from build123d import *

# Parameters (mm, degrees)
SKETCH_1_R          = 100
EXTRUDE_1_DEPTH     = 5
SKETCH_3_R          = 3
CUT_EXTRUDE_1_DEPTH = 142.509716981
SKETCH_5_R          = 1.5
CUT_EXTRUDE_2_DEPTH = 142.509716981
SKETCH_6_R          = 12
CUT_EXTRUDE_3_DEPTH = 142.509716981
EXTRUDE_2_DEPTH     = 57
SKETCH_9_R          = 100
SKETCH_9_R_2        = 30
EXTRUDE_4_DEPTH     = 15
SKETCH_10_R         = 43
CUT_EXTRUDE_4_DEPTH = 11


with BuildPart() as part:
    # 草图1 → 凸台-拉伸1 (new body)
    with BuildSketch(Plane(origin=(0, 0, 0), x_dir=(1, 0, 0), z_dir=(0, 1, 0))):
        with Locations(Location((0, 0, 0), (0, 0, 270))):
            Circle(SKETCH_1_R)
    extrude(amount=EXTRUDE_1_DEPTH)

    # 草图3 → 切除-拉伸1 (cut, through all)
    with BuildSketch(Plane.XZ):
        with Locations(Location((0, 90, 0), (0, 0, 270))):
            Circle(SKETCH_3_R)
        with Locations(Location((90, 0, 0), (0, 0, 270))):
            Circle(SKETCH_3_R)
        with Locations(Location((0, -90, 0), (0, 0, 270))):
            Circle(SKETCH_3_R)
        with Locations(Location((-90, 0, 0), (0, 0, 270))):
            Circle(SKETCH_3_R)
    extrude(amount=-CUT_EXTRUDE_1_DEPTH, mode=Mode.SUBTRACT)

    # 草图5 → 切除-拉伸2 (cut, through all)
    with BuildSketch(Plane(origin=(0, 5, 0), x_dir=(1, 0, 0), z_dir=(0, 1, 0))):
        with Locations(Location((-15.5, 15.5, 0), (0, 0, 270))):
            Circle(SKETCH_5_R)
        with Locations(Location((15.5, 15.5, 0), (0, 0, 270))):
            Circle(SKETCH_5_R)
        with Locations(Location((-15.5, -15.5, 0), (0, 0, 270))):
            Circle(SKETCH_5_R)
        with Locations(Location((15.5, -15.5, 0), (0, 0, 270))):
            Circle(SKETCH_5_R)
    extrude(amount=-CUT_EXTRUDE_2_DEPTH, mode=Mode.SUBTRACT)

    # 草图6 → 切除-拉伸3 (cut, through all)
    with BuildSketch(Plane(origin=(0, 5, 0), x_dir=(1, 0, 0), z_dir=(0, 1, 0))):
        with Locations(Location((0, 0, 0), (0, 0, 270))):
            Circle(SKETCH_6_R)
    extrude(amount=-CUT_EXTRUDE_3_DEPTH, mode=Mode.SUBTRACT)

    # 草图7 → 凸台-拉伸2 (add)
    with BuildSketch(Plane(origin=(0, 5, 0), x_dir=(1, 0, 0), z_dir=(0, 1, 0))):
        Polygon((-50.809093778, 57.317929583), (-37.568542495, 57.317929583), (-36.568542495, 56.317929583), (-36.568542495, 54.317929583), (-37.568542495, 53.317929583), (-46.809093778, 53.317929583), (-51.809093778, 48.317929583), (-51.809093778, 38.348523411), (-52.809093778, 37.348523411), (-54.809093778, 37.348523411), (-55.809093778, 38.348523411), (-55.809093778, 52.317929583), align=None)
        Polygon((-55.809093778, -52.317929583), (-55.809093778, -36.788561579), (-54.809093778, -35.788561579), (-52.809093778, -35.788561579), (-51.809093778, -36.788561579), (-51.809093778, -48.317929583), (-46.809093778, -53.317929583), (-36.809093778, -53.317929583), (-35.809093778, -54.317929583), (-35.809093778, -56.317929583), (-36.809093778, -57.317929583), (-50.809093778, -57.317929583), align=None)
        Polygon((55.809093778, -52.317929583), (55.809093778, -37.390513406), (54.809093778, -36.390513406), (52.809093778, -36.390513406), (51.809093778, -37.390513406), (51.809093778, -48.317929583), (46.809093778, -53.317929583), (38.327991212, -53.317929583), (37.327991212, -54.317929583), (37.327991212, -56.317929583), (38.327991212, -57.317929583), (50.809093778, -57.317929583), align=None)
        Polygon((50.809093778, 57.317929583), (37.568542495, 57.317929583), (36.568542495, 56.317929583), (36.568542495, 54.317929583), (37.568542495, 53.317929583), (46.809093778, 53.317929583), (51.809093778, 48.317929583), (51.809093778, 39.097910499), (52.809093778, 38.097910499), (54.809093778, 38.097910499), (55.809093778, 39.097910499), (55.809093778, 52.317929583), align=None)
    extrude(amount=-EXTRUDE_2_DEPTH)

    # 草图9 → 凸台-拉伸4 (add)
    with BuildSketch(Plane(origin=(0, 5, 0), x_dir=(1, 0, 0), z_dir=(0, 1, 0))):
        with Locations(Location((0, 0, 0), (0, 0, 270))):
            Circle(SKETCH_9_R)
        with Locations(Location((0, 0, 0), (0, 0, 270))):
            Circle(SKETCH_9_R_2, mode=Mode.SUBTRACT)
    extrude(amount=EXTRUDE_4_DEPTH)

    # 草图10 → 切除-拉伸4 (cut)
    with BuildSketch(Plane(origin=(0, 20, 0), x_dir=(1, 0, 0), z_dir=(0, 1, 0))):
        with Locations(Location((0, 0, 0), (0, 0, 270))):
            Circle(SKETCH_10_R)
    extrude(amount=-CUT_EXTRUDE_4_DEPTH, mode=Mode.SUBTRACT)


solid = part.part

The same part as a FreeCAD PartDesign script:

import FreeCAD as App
import Part
import Sketcher

doc = App.newDocument("Part")
body = doc.addObject("PartDesign::Body", "Body")

sketch1 = body.newObject("Sketcher::SketchObject", "Sketch")
sketch1.AttachmentSupport = (doc.getObject("XZ_Plane"), [""])
sketch1.MapMode = "FlatFace"
sketch1.addGeometry(Part.Circle(App.Vector(0, 0, 0), App.Vector(0, 0, 1), 100), False)
sketch1.addConstraint(Sketcher.Constraint("Coincident", 0, 3, -1, 1))
sketch1.addConstraint(Sketcher.Constraint("Diameter", 0, 200.0))
pad1 = body.newObject("PartDesign::Pad", "Pad")
pad1.Profile = sketch1
pad1.Length = 5
pad1.Reversed = True

sketch2 = body.newObject("Sketcher::SketchObject", "Sketch001")
sketch2.AttachmentSupport = (doc.getObject("XZ_Plane"), [""])
sketch2.MapMode = "FlatFace"
sketch2.addGeometry(Part.Circle(App.Vector(0, 90, 0), App.Vector(0, 0, 1), 3), False)
sketch2.addGeometry(Part.Circle(App.Vector(90, 0, 0), App.Vector(0, 0, 1), 3), False)
sketch2.addGeometry(Part.Circle(App.Vector(0, -90, 0), App.Vector(0, 0, 1), 3), False)
sketch2.addGeometry(Part.Circle(App.Vector(-90, 0, 0), App.Vector(0, 0, 1), 3), False)
sketch2.addConstraint(Sketcher.Constraint("Equal", 0, 1))
sketch2.addConstraint(Sketcher.Constraint("Equal", 1, 2))
sketch2.addConstraint(Sketcher.Constraint("Equal", 2, 3))
sketch2.addConstraint(Sketcher.Constraint("Symmetric", 0, 3, 2, 3, -1, 1))
sketch2.addConstraint(Sketcher.Constraint("Symmetric", 1, 3, 3, 3, -1, 1))
sketch2.addConstraint(Sketcher.Constraint("PointOnObject", 0, 3, -2))
sketch2.addConstraint(Sketcher.Constraint("PointOnObject", 1, 3, -1))
sketch2.addConstraint(Sketcher.Constraint("Diameter", 0, 6.0))
sketch2.addConstraint(Sketcher.Constraint("DistanceY", -1, 1, 0, 3, 90.0))
sketch2.addConstraint(Sketcher.Constraint("DistanceX", -1, 1, 1, 3, 90.0))
pocket1 = body.newObject("PartDesign::Pocket", "Pocket")
pocket1.Profile = sketch2
pocket1.Type = "ThroughAll"

sketch3 = body.newObject("Sketcher::SketchObject", "Sketch002")
sketch3.AttachmentSupport = (doc.getObject("XZ_Plane"), [""])
sketch3.MapMode = "FlatFace"
sketch3.AttachmentOffset = App.Placement(App.Vector(0, 0, -5), App.Rotation())
sketch3.addGeometry(Part.Circle(App.Vector(-15.5, -15.5, 0), App.Vector(0, 0, 1), 1.5), False)
sketch3.addGeometry(Part.Circle(App.Vector(15.5, -15.5, 0), App.Vector(0, 0, 1), 1.5), False)
sketch3.addGeometry(Part.Circle(App.Vector(-15.5, 15.5, 0), App.Vector(0, 0, 1), 1.5), False)
sketch3.addGeometry(Part.Circle(App.Vector(15.5, 15.5, 0), App.Vector(0, 0, 1), 1.5), False)
sketch3.addConstraint(Sketcher.Constraint("Equal", 0, 1))
sketch3.addConstraint(Sketcher.Constraint("Equal", 1, 2))
sketch3.addConstraint(Sketcher.Constraint("Equal", 2, 3))
sketch3.addConstraint(Sketcher.Constraint("Symmetric", 1, 3, 2, 3, -1, 1))
sketch3.addConstraint(Sketcher.Constraint("Symmetric", 0, 3, 3, 3, -1, 1))
sketch3.addConstraint(Sketcher.Constraint("Symmetric", 0, 3, 1, 3, -2))
sketch3.addConstraint(Sketcher.Constraint("Diameter", 0, 3.0))
sketch3.addConstraint(Sketcher.Constraint("DistanceX", 0, 3, 1, 3, 31.0))
sketch3.addConstraint(Sketcher.Constraint("DistanceY", 0, 3, 2, 3, 31.0))
pocket2 = body.newObject("PartDesign::Pocket", "Pocket001")
pocket2.Profile = sketch3
pocket2.Type = "ThroughAll"
pocket2.Reversed = True

sketch4 = body.newObject("Sketcher::SketchObject", "Sketch003")
sketch4.AttachmentSupport = (doc.getObject("XZ_Plane"), [""])
sketch4.MapMode = "FlatFace"
sketch4.AttachmentOffset = App.Placement(App.Vector(0, 0, -5), App.Rotation())
sketch4.addGeometry(Part.Circle(App.Vector(0, 0, 0), App.Vector(0, 0, 1), 12), False)
sketch4.addConstraint(Sketcher.Constraint("Coincident", 0, 3, -1, 1))
sketch4.addConstraint(Sketcher.Constraint("Diameter", 0, 24.0))
pocket3 = body.newObject("PartDesign::Pocket", "Pocket002")
pocket3.Profile = sketch4
pocket3.Type = "ThroughAll"
pocket3.Reversed = True

sketch5 = body.newObject("Sketcher::SketchObject", "Sketch004")
sketch5.AttachmentSupport = (doc.getObject("XZ_Plane"), [""])
sketch5.MapMode = "FlatFace"
sketch5.AttachmentOffset = App.Placement(App.Vector(0, 0, -5), App.Rotation())
sketch5.addGeometry(Part.LineSegment(App.Vector(-37.6, -57.3, 0), App.Vector(-50.8, -57.3, 0)), False)
sketch5.addGeometry(Part.LineSegment(App.Vector(-50.8, -57.3, 0), App.Vector(-55.8, -52.3, 0)), False)
sketch5.addGeometry(Part.LineSegment(App.Vector(-55.8, -52.3, 0), App.Vector(-55.8, -38.3, 0)), False)
sketch5.addGeometry(Part.LineSegment(App.Vector(-55.8, -38.3, 0), App.Vector(-54.8, -37.3, 0)), False)
sketch5.addGeometry(Part.LineSegment(App.Vector(-54.8, -37.3, 0), App.Vector(-52.8, -37.3, 0)), False)
sketch5.addGeometry(Part.LineSegment(App.Vector(-52.8, -37.3, 0), App.Vector(-51.8, -38.3, 0)), False)
sketch5.addGeometry(Part.LineSegment(App.Vector(-51.8, -38.3, 0), App.Vector(-51.8, -48.3, 0)), False)
sketch5.addGeometry(Part.LineSegment(App.Vector(-51.8, -48.3, 0), App.Vector(-46.8, -53.3, 0)), False)
sketch5.addGeometry(Part.LineSegment(App.Vector(-46.8, -53.3, 0), App.Vector(-37.6, -53.3, 0)), False)
sketch5.addGeometry(Part.LineSegment(App.Vector(-37.6, -53.3, 0), App.Vector(-36.6, -54.3, 0)), False)
sketch5.addGeometry(Part.LineSegment(App.Vector(-36.6, -54.3, 0), App.Vector(-36.6, -56.3, 0)), False)
sketch5.addGeometry(Part.LineSegment(App.Vector(-36.6, -56.3, 0), App.Vector(-37.6, -57.3, 0)), False)
sketch5.addGeometry(Part.LineSegment(App.Vector(-55.8, 36.8, 0), App.Vector(-55.8, 52.3, 0)), False)
sketch5.addGeometry(Part.LineSegment(App.Vector(-55.8, 52.3, 0), App.Vector(-50.8, 57.3, 0)), False)
sketch5.addGeometry(Part.LineSegment(App.Vector(-50.8, 57.3, 0), App.Vector(-36.8, 57.3, 0)), False)
sketch5.addGeometry(Part.LineSegment(App.Vector(-36.8, 57.3, 0), App.Vector(-35.8, 56.3, 0)), False)
sketch5.addGeometry(Part.LineSegment(App.Vector(-35.8, 56.3, 0), App.Vector(-35.8, 54.3, 0)), False)
sketch5.addGeometry(Part.LineSegment(App.Vector(-35.8, 54.3, 0), App.Vector(-36.8, 53.3, 0)), False)
sketch5.addGeometry(Part.LineSegment(App.Vector(-36.8, 53.3, 0), App.Vector(-46.8, 53.3, 0)), False)
sketch5.addGeometry(Part.LineSegment(App.Vector(-46.8, 53.3, 0), App.Vector(-51.8, 48.3, 0)), False)
sketch5.addGeometry(Part.LineSegment(App.Vector(-51.8, 48.3, 0), App.Vector(-51.8, 36.8, 0)), False)
sketch5.addGeometry(Part.LineSegment(App.Vector(-51.8, 36.8, 0), App.Vector(-52.8, 35.8, 0)), False)
sketch5.addGeometry(Part.LineSegment(App.Vector(-52.8, 35.8, 0), App.Vector(-54.8, 35.8, 0)), False)
sketch5.addGeometry(Part.LineSegment(App.Vector(-54.8, 35.8, 0), App.Vector(-55.8, 36.8, 0)), False)
sketch5.addGeometry(Part.LineSegment(App.Vector(55.8, 52.3, 0), App.Vector(55.8, 37.4, 0)), False)
sketch5.addGeometry(Part.LineSegment(App.Vector(55.8, 37.4, 0), App.Vector(54.8, 36.4, 0)), False)
sketch5.addGeometry(Part.LineSegment(App.Vector(54.8, 36.4, 0), App.Vector(52.8, 36.4, 0)), False)
sketch5.addGeometry(Part.LineSegment(App.Vector(52.8, 36.4, 0), App.Vector(51.8, 37.4, 0)), False)
sketch5.addGeometry(Part.LineSegment(App.Vector(51.8, 37.4, 0), App.Vector(51.8, 48.3, 0)), False)
sketch5.addGeometry(Part.LineSegment(App.Vector(51.8, 48.3, 0), App.Vector(46.8, 53.3, 0)), False)
sketch5.addGeometry(Part.LineSegment(App.Vector(46.8, 53.3, 0), App.Vector(38.3, 53.3, 0)), False)
sketch5.addGeometry(Part.LineSegment(App.Vector(38.3, 53.3, 0), App.Vector(37.3, 54.3, 0)), False)
sketch5.addGeometry(Part.LineSegment(App.Vector(37.3, 54.3, 0), App.Vector(37.3, 56.3, 0)), False)
sketch5.addGeometry(Part.LineSegment(App.Vector(37.3, 56.3, 0), App.Vector(38.3, 57.3, 0)), False)
sketch5.addGeometry(Part.LineSegment(App.Vector(38.3, 57.3, 0), App.Vector(50.8, 57.3, 0)), False)
sketch5.addGeometry(Part.LineSegment(App.Vector(50.8, 57.3, 0), App.Vector(55.8, 52.3, 0)), False)
sketch5.addGeometry(Part.LineSegment(App.Vector(50.8, -57.3, 0), App.Vector(37.6, -57.3, 0)), False)
sketch5.addGeometry(Part.LineSegment(App.Vector(37.6, -57.3, 0), App.Vector(36.6, -56.3, 0)), False)
sketch5.addGeometry(Part.LineSegment(App.Vector(36.6, -56.3, 0), App.Vector(36.6, -54.3, 0)), False)
sketch5.addGeometry(Part.LineSegment(App.Vector(36.6, -54.3, 0), App.Vector(37.6, -53.3, 0)), False)
sketch5.addGeometry(Part.LineSegment(App.Vector(37.6, -53.3, 0), App.Vector(46.8, -53.3, 0)), False)
sketch5.addGeometry(Part.LineSegment(App.Vector(46.8, -53.3, 0), App.Vector(51.8, -48.3, 0)), False)
sketch5.addGeometry(Part.LineSegment(App.Vector(51.8, -48.3, 0), App.Vector(51.8, -39.1, 0)), False)
sketch5.addGeometry(Part.LineSegment(App.Vector(51.8, -39.1, 0), App.Vector(52.8, -38.1, 0)), False)
sketch5.addGeometry(Part.LineSegment(App.Vector(52.8, -38.1, 0), App.Vector(54.8, -38.1, 0)), False)
sketch5.addGeometry(Part.LineSegment(App.Vector(54.8, -38.1, 0), App.Vector(55.8, -39.1, 0)), False)
sketch5.addGeometry(Part.LineSegment(App.Vector(55.8, -39.1, 0), App.Vector(55.8, -52.3, 0)), False)
sketch5.addGeometry(Part.LineSegment(App.Vector(55.8, -52.3, 0), App.Vector(50.8, -57.3, 0)), False)
sketch5.addConstraint(Sketcher.Constraint("Coincident", 0, 2, 1, 1))
sketch5.addConstraint(Sketcher.Constraint("Coincident", 1, 2, 2, 1))
sketch5.addConstraint(Sketcher.Constraint("Coincident", 2, 2, 3, 1))
sketch5.addConstraint(Sketcher.Constraint("Coincident", 3, 2, 4, 1))
sketch5.addConstraint(Sketcher.Constraint("Coincident", 4, 2, 5, 1))
sketch5.addConstraint(Sketcher.Constraint("Coincident", 5, 2, 6, 1))
sketch5.addConstraint(Sketcher.Constraint("Coincident", 6, 2, 7, 1))
sketch5.addConstraint(Sketcher.Constraint("Coincident", 7, 2, 8, 1))
sketch5.addConstraint(Sketcher.Constraint("Coincident", 8, 2, 9, 1))
sketch5.addConstraint(Sketcher.Constraint("Coincident", 9, 2, 10, 1))
sketch5.addConstraint(Sketcher.Constraint("Coincident", 10, 2, 11, 1))
sketch5.addConstraint(Sketcher.Constraint("Coincident", 11, 2, 0, 1))
sketch5.addConstraint(Sketcher.Constraint("Coincident", 12, 2, 13, 1))
sketch5.addConstraint(Sketcher.Constraint("Coincident", 13, 2, 14, 1))
sketch5.addConstraint(Sketcher.Constraint("Coincident", 14, 2, 15, 1))
sketch5.addConstraint(Sketcher.Constraint("Coincident", 15, 2, 16, 1))
sketch5.addConstraint(Sketcher.Constraint("Coincident", 16, 2, 17, 1))
sketch5.addConstraint(Sketcher.Constraint("Coincident", 17, 2, 18, 1))
sketch5.addConstraint(Sketcher.Constraint("Coincident", 18, 2, 19, 1))
sketch5.addConstraint(Sketcher.Constraint("Coincident", 19, 2, 20, 1))
sketch5.addConstraint(Sketcher.Constraint("Coincident", 20, 2, 21, 1))
sketch5.addConstraint(Sketcher.Constraint("Coincident", 21, 2, 22, 1))
sketch5.addConstraint(Sketcher.Constraint("Coincident", 22, 2, 23, 1))
sketch5.addConstraint(Sketcher.Constraint("Coincident", 23, 2, 12, 1))
sketch5.addConstraint(Sketcher.Constraint("Coincident", 24, 2, 25, 1))
sketch5.addConstraint(Sketcher.Constraint("Coincident", 25, 2, 26, 1))
sketch5.addConstraint(Sketcher.Constraint("Coincident", 26, 2, 27, 1))
sketch5.addConstraint(Sketcher.Constraint("Coincident", 27, 2, 28, 1))
sketch5.addConstraint(Sketcher.Constraint("Coincident", 28, 2, 29, 1))
sketch5.addConstraint(Sketcher.Constraint("Coincident", 29, 2, 30, 1))
sketch5.addConstraint(Sketcher.Constraint("Coincident", 30, 2, 31, 1))
sketch5.addConstraint(Sketcher.Constraint("Coincident", 31, 2, 32, 1))
sketch5.addConstraint(Sketcher.Constraint("Coincident", 32, 2, 33, 1))
sketch5.addConstraint(Sketcher.Constraint("Coincident", 33, 2, 34, 1))
sketch5.addConstraint(Sketcher.Constraint("Coincident", 34, 2, 35, 1))
sketch5.addConstraint(Sketcher.Constraint("Coincident", 35, 2, 24, 1))
sketch5.addConstraint(Sketcher.Constraint("Coincident", 36, 2, 37, 1))
sketch5.addConstraint(Sketcher.Constraint("Coincident", 37, 2, 38, 1))
sketch5.addConstraint(Sketcher.Constraint("Coincident", 38, 2, 39, 1))
sketch5.addConstraint(Sketcher.Constraint("Coincident", 39, 2, 40, 1))
sketch5.addConstraint(Sketcher.Constraint("Coincident", 40, 2, 41, 1))
sketch5.addConstraint(Sketcher.Constraint("Coincident", 41, 2, 42, 1))
sketch5.addConstraint(Sketcher.Constraint("Coincident", 42, 2, 43, 1))
sketch5.addConstraint(Sketcher.Constraint("Coincident", 43, 2, 44, 1))
sketch5.addConstraint(Sketcher.Constraint("Coincident", 44, 2, 45, 1))
sketch5.addConstraint(Sketcher.Constraint("Coincident", 45, 2, 46, 1))
sketch5.addConstraint(Sketcher.Constraint("Coincident", 46, 2, 47, 1))
sketch5.addConstraint(Sketcher.Constraint("Coincident", 47, 2, 36, 1))
sketch5.addConstraint(Sketcher.Constraint("Horizontal", 0))
sketch5.addConstraint(Sketcher.Constraint("Vertical", 2))
sketch5.addConstraint(Sketcher.Constraint("Horizontal", 4))
sketch5.addConstraint(Sketcher.Constraint("Vertical", 6))
sketch5.addConstraint(Sketcher.Constraint("Horizontal", 8))
sketch5.addConstraint(Sketcher.Constraint("Vertical", 10))
sketch5.addConstraint(Sketcher.Constraint("Vertical", 12))
sketch5.addConstraint(Sketcher.Constraint("Horizontal", 14))
sketch5.addConstraint(Sketcher.Constraint("Vertical", 16))
sketch5.addConstraint(Sketcher.Constraint("Horizontal", 18))
sketch5.addConstraint(Sketcher.Constraint("Vertical", 20))
sketch5.addConstraint(Sketcher.Constraint("Horizontal", 22))
sketch5.addConstraint(Sketcher.Constraint("Vertical", 24))
sketch5.addConstraint(Sketcher.Constraint("Horizontal", 26))
sketch5.addConstraint(Sketcher.Constraint("Vertical", 28))
sketch5.addConstraint(Sketcher.Constraint("Horizontal", 30))
sketch5.addConstraint(Sketcher.Constraint("Vertical", 32))
sketch5.addConstraint(Sketcher.Constraint("Horizontal", 34))
sketch5.addConstraint(Sketcher.Constraint("Horizontal", 36))
sketch5.addConstraint(Sketcher.Constraint("Vertical", 38))
sketch5.addConstraint(Sketcher.Constraint("Horizontal", 40))
sketch5.addConstraint(Sketcher.Constraint("Vertical", 42))
sketch5.addConstraint(Sketcher.Constraint("Horizontal", 44))
sketch5.addConstraint(Sketcher.Constraint("Vertical", 46))
sketch5.addConstraint(Sketcher.Constraint("Symmetric", 6, 2, 28, 2, -1, 1))
sketch5.addConstraint(Sketcher.Constraint("Symmetric", 7, 2, 29, 2, -1, 1))
sketch5.addConstraint(Sketcher.Constraint("Symmetric", 0, 2, 34, 2, -1, 1))
sketch5.addConstraint(Sketcher.Constraint("Symmetric", 1, 2, 35, 2, -1, 1))
sketch5.addConstraint(Sketcher.Constraint("Symmetric", 18, 2, 40, 2, -1, 1))
sketch5.addConstraint(Sketcher.Constraint("Symmetric", 19, 2, 41, 2, -1, 1))
sketch5.addConstraint(Sketcher.Constraint("Symmetric", 12, 2, 46, 2, -1, 1))
sketch5.addConstraint(Sketcher.Constraint("Symmetric", 13, 2, 47, 2, -1, 1))
sketch5.addConstraint(Sketcher.Constraint("Symmetric", 19, 2, 28, 2, -2))
sketch5.addConstraint(Sketcher.Constraint("Symmetric", 18, 2, 29, 2, -2))
sketch5.addConstraint(Sketcher.Constraint("Symmetric", 13, 2, 34, 2, -2))
sketch5.addConstraint(Sketcher.Constraint("Symmetric", 12, 2, 35, 2, -2))
sketch5.addConstraint(Sketcher.Constraint("Symmetric", 10, 2, 37, 2, -2))
sketch5.addConstraint(Sketcher.Constraint("Perpendicular", 1, 3))
sketch5.addConstraint(Sketcher.Constraint("Perpendicular", 3, 5))
sketch5.addConstraint(Sketcher.Constraint("Parallel", 5, 7))
sketch5.addConstraint(Sketcher.Constraint("Parallel", 7, 9))
sketch5.addConstraint(Sketcher.Constraint("Perpendicular", 9, 11))
sketch5.addConstraint(Sketcher.Constraint("Parallel", 11, 13))
sketch5.addConstraint(Sketcher.Constraint("Perpendicular", 13, 15))
sketch5.addConstraint(Sketcher.Constraint("Perpendicular", 15, 17))
sketch5.addConstraint(Sketcher.Constraint("Parallel", 19, 21))
sketch5.addConstraint(Sketcher.Constraint("Perpendicular", 21, 23))
sketch5.addConstraint(Sketcher.Constraint("Perpendicular", 23, 25))
sketch5.addConstraint(Sketcher.Constraint("Perpendicular", 25, 27))
sketch5.addConstraint(Sketcher.Constraint("Parallel", 29, 31))
sketch5.addConstraint(Sketcher.Constraint("Perpendicular", 31, 33))
sketch5.addConstraint(Sketcher.Constraint("Parallel", 35, 37))
sketch5.addConstraint(Sketcher.Constraint("Perpendicular", 37, 39))
sketch5.addConstraint(Sketcher.Constraint("Parallel", 41, 43))
sketch5.addConstraint(Sketcher.Constraint("Perpendicular", 43, 45))
sketch5.addConstraint(Sketcher.Constraint("Horizontal", 2, 2, 5, 2))
sketch5.addConstraint(Sketcher.Constraint("Horizontal", 20, 2, 23, 2))
sketch5.addConstraint(Sketcher.Constraint("Horizontal", 24, 2, 27, 2))
sketch5.addConstraint(Sketcher.Constraint("Horizontal", 16, 2, 31, 2))
sketch5.addConstraint(Sketcher.Constraint("Horizontal", 15, 2, 32, 2))
sketch5.addConstraint(Sketcher.Constraint("Horizontal", 9, 2, 38, 2))
sketch5.addConstraint(Sketcher.Constraint("Horizontal", 42, 2, 45, 2))
sketch5.addConstraint(Sketcher.Constraint("Vertical", 8, 2, 11, 2))
sketch5.addConstraint(Sketcher.Constraint("Vertical", 14, 2, 17, 2))
sketch5.addConstraint(Sketcher.Constraint("Vertical", 4, 2, 21, 2))
sketch5.addConstraint(Sketcher.Constraint("Vertical", 26, 2, 43, 2))
sketch5.addConstraint(Sketcher.Constraint("Equal", 22, 26))
sketch5.addConstraint(Sketcher.Constraint("Equal", 44, 10))
sketch5.addConstraint(Sketcher.Constraint("Equal", 10, 16))
sketch5.addConstraint(Sketcher.Constraint("Equal", 1, 7))
sketch5.addConstraint(Sketcher.Constraint("Equal", 5, 9))
sketch5.addConstraint(Sketcher.Constraint("DistanceX", 4, 1, 4, 2, 2.0))
sketch5.addConstraint(Sketcher.Constraint("DistanceX", 14, 1, 14, 2, 14.0))
sketch5.addConstraint(Sketcher.Constraint("DistanceX", 18, 2, 18, 1, 10.0))
sketch5.addConstraint(Sketcher.Constraint("DistanceX", 1, 2, 0, 2, 5.0))
sketch5.addConstraint(Sketcher.Constraint("DistanceX", 0, 2, 0, 1, 13.240551))
sketch5.addConstraint(Sketcher.Constraint("DistanceY", 12, 1, 12, 2, 15.529368))
sketch5.addConstraint(Sketcher.Constraint("DistanceY", 42, 1, 42, 2, 9.220019))
sketch5.addConstraint(Sketcher.Constraint("DistanceX", 30, 2, 30, 1, 8.481103))
sketch5.addConstraint(Sketcher.Constraint("DistanceY", 2, 1, 2, 2, 13.969406))
sketch5.addConstraint(Sketcher.Constraint("DistanceY", 24, 2, 24, 1, 14.927416))
sketch5.addConstraint(Sketcher.Constraint("DistanceY", 0, 2, -1, 1, 57.31793))
sketch5.addConstraint(Sketcher.Constraint("DistanceX", -1, 1, 30, 2, 38.327991))
pad2 = body.newObject("PartDesign::Pad", "Pad001")
pad2.Profile = sketch5
pad2.Length = 57

sketch6 = body.newObject("Sketcher::SketchObject", "Sketch005")
sketch6.AttachmentSupport = (doc.getObject("XZ_Plane"), [""])
sketch6.MapMode = "FlatFace"
sketch6.AttachmentOffset = App.Placement(App.Vector(0, 0, -5), App.Rotation())
sketch6.addGeometry(Part.Circle(App.Vector(0, 0, 0), App.Vector(0, 0, 1), 100), False)
sketch6.addGeometry(Part.Circle(App.Vector(0, 0, 0), App.Vector(0, 0, 1), 30), False)
sketch6.addConstraint(Sketcher.Constraint("Coincident", 0, 3, -1, 1))
sketch6.addConstraint(Sketcher.Constraint("Coincident", 1, 3, -1, 1))
sketch6.addConstraint(Sketcher.Constraint("Diameter", 0, 200.0))
sketch6.addConstraint(Sketcher.Constraint("Diameter", 1, 60.0))
pad3 = body.newObject("PartDesign::Pad", "Pad002")
pad3.Profile = sketch6
pad3.Length = 15
pad3.Reversed = True

sketch7 = body.newObject("Sketcher::SketchObject", "Sketch006")
sketch7.AttachmentSupport = (doc.getObject("XZ_Plane"), [""])
sketch7.MapMode = "FlatFace"
sketch7.AttachmentOffset = App.Placement(App.Vector(0, 0, -20), App.Rotation())
sketch7.addGeometry(Part.Circle(App.Vector(0, 0, 0), App.Vector(0, 0, 1), 43), False)
sketch7.addConstraint(Sketcher.Constraint("Coincident", 0, 3, -1, 1))
sketch7.addConstraint(Sketcher.Constraint("Diameter", 0, 86.0))
pocket4 = body.newObject("PartDesign::Pocket", "Pocket003")
pocket4.Profile = sketch7
pocket4.Length = 11
pocket4.Reversed = True

doc.recompute()
